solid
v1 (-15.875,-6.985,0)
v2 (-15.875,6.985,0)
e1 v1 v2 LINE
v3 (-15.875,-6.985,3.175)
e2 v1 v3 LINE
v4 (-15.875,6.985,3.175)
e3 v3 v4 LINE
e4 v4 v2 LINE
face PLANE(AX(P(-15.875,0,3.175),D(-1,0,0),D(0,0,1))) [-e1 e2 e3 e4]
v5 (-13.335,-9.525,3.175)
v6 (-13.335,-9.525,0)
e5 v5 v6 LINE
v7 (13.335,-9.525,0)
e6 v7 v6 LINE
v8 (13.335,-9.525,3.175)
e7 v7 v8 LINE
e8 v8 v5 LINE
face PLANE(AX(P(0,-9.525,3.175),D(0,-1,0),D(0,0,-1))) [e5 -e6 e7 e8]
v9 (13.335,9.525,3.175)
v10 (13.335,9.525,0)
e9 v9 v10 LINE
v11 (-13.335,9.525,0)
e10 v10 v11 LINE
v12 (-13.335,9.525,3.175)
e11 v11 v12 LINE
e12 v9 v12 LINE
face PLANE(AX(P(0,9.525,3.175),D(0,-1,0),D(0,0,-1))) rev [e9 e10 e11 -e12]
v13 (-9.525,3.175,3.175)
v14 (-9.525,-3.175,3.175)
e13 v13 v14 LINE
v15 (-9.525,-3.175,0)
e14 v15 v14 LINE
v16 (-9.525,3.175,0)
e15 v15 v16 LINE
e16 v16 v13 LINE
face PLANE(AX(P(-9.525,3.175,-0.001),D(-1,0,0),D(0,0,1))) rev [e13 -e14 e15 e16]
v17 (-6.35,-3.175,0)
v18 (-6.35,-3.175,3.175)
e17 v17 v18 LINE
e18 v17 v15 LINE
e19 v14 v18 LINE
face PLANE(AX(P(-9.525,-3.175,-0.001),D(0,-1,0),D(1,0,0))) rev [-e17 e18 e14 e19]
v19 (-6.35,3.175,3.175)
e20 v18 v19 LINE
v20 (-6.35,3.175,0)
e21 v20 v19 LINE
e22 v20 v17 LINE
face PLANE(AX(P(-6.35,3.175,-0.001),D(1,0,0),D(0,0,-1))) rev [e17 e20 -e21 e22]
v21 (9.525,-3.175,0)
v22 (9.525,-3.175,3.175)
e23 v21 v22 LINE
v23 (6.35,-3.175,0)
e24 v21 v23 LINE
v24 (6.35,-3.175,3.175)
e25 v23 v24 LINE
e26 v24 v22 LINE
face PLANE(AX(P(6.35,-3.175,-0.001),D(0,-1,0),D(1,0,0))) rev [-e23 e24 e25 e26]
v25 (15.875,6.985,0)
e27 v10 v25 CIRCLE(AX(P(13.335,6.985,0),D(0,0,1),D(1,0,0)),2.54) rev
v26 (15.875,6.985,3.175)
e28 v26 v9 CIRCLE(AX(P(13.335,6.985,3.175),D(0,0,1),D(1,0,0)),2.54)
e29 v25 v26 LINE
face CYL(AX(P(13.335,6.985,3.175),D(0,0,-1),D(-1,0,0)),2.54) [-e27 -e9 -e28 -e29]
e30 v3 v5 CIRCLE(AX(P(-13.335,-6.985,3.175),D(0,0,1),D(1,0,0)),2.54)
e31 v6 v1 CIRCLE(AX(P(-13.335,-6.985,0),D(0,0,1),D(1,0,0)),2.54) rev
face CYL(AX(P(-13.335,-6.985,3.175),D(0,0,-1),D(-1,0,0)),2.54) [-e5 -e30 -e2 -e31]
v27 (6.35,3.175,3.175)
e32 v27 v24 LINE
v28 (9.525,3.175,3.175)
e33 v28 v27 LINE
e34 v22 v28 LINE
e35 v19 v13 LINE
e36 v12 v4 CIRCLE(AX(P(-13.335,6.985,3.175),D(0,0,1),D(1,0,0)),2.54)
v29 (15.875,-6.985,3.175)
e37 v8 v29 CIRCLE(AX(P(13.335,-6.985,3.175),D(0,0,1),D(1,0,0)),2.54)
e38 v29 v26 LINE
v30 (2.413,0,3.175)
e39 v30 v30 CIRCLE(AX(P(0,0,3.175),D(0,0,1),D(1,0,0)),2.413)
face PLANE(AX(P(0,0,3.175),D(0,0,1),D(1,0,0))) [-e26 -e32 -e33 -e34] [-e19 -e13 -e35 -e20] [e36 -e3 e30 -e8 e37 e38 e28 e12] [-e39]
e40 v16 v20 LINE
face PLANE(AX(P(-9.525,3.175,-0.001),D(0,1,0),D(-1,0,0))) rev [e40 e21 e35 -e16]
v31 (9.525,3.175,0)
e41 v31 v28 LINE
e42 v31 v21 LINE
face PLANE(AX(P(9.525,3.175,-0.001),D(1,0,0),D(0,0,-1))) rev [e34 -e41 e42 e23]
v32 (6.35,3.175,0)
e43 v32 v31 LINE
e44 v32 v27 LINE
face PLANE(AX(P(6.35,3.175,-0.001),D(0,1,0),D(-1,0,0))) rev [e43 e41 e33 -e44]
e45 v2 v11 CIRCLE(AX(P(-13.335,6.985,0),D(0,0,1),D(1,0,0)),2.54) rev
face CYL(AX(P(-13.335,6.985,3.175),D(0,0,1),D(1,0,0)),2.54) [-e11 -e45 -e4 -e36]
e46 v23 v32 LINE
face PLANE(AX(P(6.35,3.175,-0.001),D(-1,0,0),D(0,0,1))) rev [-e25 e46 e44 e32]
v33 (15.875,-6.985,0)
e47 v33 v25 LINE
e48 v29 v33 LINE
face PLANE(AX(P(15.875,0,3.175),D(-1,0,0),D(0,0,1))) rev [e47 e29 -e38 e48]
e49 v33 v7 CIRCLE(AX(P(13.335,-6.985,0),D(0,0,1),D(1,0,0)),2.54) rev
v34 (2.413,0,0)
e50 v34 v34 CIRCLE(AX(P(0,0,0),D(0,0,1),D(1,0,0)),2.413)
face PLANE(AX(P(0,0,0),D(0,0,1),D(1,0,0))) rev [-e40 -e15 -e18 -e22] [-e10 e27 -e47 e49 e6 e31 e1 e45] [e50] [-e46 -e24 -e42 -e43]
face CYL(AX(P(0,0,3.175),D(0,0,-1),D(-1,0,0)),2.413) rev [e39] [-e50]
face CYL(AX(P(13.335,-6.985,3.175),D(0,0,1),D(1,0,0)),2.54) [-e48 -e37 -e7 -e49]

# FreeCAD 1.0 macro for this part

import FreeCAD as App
import Part
import Sketcher

V = App.Vector
Q = App.Units.Quantity


def edges_at(feature, points):
    """Names of the edges that pass closest to the given points."""
    edges = feature.Shape.Edges
    near = lambda p: min(range(len(edges)), key=lambda i: edges[i].distToShape(Part.Vertex(*p))[0])
    return sorted({f"Edge{near(p) + 1}" for p in points})

doc = App.newDocument("Part")
params = doc.addObject("Spreadsheet::Sheet", "Params")
for row, (alias, value) in enumerate([
    ("sketch1_diameter", "0.19 in"),
    ("sketch1_width", "1.25 in"),
    ("sketch1_height", "0.75 in"),
    ("pad1_length", "0.125 in"),
    ("fillet_radius", "0.1 in"),
    ("sketch2_height", "0.25 in"),
    ("sketch2_width", "0.125 in"),
    ("sketch3_height", "0.25 in"),
    ("sketch3_width", "0.125 in"),
], start=1):
    params.set(f"A{row}", alias)
    params.set(f"B{row}", "=" + value)
    params.setAlias(f"B{row}", alias)

body = doc.addObject("PartDesign::Body", "Body")

# Sketch on XY plane
sketch1 = doc.addObject("Sketcher::SketchObject", "Sketch")
body.addObject(sketch1)
sketch1.AttachmentSupport = (doc.XY_Plane, [""])
sketch1.MapMode = "FlatFace"
sketch1.addGeometry([
    Part.LineSegment(V(-15.875, 9.525, 0), V(-15.875, -9.525, 0)),  # 0
    Part.LineSegment(V(-15.875, -9.525, 0), V(15.875, -9.525, 0)),  # 1
    Part.LineSegment(V(15.875, -9.525, 0), V(15.875, 9.525, 0)),  # 2
    Part.LineSegment(V(15.875, 9.525, 0), V(-15.875, 9.525, 0)),  # 3
    Part.Circle(V(0, 0, 0), V(0, 0, 1), 2.413),  # 4
], False)
sketch1.addConstraint([
    Sketcher.Constraint("Coincident", 0, 2, 1, 1),
    Sketcher.Constraint("Coincident", 1, 2, 2, 1),
    Sketcher.Constraint("Coincident", 2, 2, 3, 1),
    Sketcher.Constraint("Coincident", 3, 2, 0, 1),
    Sketcher.Constraint("Vertical", 0),
    Sketcher.Constraint("Horizontal", 1),
    Sketcher.Constraint("Vertical", 2),
    Sketcher.Constraint("Horizontal", 3),
    Sketcher.Constraint("Coincident", 4, 3, -1, 1),
    Sketcher.Constraint("Symmetric", 0, 2, 2, 2, -1, 1),
    Sketcher.Constraint("Diameter", 4, Q("0.19 in")),
    Sketcher.Constraint("DistanceX", 1, 1, 1, 2, Q("1.25 in")),
    Sketcher.Constraint("DistanceY", 0, 2, 0, 1, Q("0.75 in")),
])
sketch1.setExpression("Constraints[10]", "Params.sketch1_diameter")
sketch1.setExpression("Constraints[11]", "Params.sketch1_width")
sketch1.setExpression("Constraints[12]", "Params.sketch1_height")
pad1 = doc.addObject("PartDesign::Pad", "Pad")
body.addObject(pad1)
pad1.Profile = sketch1
pad1.setExpression("Length", "Params.pad1_length")
doc.recompute()

fillet = doc.addObject("PartDesign::Fillet", "Fillet")
body.addObject(fillet)
fillet.Base = (pad1, edges_at(pad1, [
    (-15.875, -9.525, 1.587),
    (-15.875, 9.525, 1.587),
    (15.875, 9.525, 1.587),
    (15.875, -9.525, 1.587),
]))
fillet.setExpression("Radius", "Params.fillet_radius")

# Sketch on XY plane
sketch2 = doc.addObject("Sketcher::SketchObject", "Sketch001")
body.addObject(sketch2)
sketch2.AttachmentSupport = (doc.XY_Plane, [""])
sketch2.MapMode = "FlatFace"
sketch2.AttachmentOffset = App.Placement(V(0, 0, 0.125 * 25.4), App.Rotation())
sketch2.addGeometry([
    Part.LineSegment(V(6.35, 3.175, 0), V(6.35, -3.175, 0)),
    Part.LineSegment(V(6.35, -3.175, 0), V(9.525, -3.175, 0)),
    Part.LineSegment(V(9.525, -3.175, 0), V(9.525, 3.175, 0)),
    Part.LineSegment(V(9.525, 3.175, 0), V(6.35, 3.175, 0)),
], False)
sketch2.addConstraint([
    Sketcher.Constraint("Coincident", 0, 2, 1, 1),
    Sketcher.Constraint("Coincident", 1, 2, 2, 1),
    Sketcher.Constraint("Coincident", 2, 2, 3, 1),
    Sketcher.Constraint("Coincident", 3, 2, 0, 1),
    Sketcher.Constraint("Vertical", 0),
    Sketcher.Constraint("Horizontal", 1),
    Sketcher.Constraint("Vertical", 2),
    Sketcher.Constraint("Horizontal", 3),
    Sketcher.Constraint("DistanceY", 0, 2, 0, 1, Q("0.25 in")),
    Sketcher.Constraint("DistanceX", 1, 1, 1, 2, Q("0.125 in")),
    Sketcher.Constraint("DistanceX", -1, 1, 0, 2, Q("0.25 in")),
    Sketcher.Constraint("DistanceY", 0, 2, -1, 1, Q("0.125 in")),
])
sketch2.setExpression("Constraints[8]", "Params.sketch2_height")
sketch2.setExpression("Constraints[9]", "Params.sketch2_width")
pocket1 = doc.addObject("PartDesign::Pocket", "Pocket")
body.addObject(pocket1)
pocket1.Profile = sketch2
pocket1.Type = "UpToFirst"

# Sketch on XY plane
sketch3 = doc.addObject("Sketcher::SketchObject", "Sketch002")
body.addObject(sketch3)
sketch3.AttachmentSupport = (doc.XY_Plane, [""])
sketch3.MapMode = "FlatFace"
sketch3.AttachmentOffset = App.Placement(V(0, 0, 0.125 * 25.4), App.Rotation())
sketch3.addGeometry([
    Part.LineSegment(V(-9.525, 3.175, 0), V(-9.525, -3.175, 0)),
    Part.LineSegment(V(-9.525, -3.175, 0), V(-6.35, -3.175, 0)),
    Part.LineSegment(V(-6.35, -3.175, 0), V(-6.35, 3.175, 0)),
    Part.LineSegment(V(-6.35, 3.175, 0), V(-9.525, 3.175, 0)),
], False)
sketch3.addConstraint([
    Sketcher.Constraint("Coincident", 0, 2, 1, 1),
    Sketcher.Constraint("Coincident", 1, 2, 2, 1),
    Sketcher.Constraint("Coincident", 2, 2, 3, 1),
    Sketcher.Constraint("Coincident", 3, 2, 0, 1),
    Sketcher.Constraint("Vertical", 0),
    Sketcher.Constraint("Horizontal", 1),
    Sketcher.Constraint("Vertical", 2),
    Sketcher.Constraint("Horizontal", 3),
    Sketcher.Constraint("DistanceY", 0, 2, 0, 1, Q("0.25 in")),
    Sketcher.Constraint("DistanceX", 1, 1, 1, 2, Q("0.125 in")),
    Sketcher.Constraint("DistanceX", 1, 2, -1, 1, Q("0.25 in")),
    Sketcher.Constraint("DistanceY", 0, 2, -1, 1, Q("0.125 in")),
])
sketch3.setExpression("Constraints[8]", "Params.sketch3_height")
sketch3.setExpression("Constraints[9]", "Params.sketch3_width")
pocket2 = doc.addObject("PartDesign::Pocket", "Pocket001")
body.addObject(pocket2)
pocket2.Profile = sketch3
pocket2.Type = "UpToFirst"

doc.recompute()
